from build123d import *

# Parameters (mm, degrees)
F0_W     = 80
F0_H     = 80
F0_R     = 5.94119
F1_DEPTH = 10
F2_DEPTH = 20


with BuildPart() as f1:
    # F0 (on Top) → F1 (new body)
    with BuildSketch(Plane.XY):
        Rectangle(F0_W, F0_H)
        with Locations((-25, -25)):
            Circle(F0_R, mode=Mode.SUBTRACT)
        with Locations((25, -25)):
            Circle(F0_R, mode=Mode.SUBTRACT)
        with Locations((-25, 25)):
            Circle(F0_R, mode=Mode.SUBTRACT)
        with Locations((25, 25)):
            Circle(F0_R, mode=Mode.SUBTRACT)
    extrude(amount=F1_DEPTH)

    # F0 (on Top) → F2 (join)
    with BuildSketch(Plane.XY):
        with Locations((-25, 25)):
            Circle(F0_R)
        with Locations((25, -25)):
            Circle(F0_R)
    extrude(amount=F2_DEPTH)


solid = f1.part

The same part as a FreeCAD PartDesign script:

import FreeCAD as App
import Part
import Sketcher
Q = App.Units.Quantity

doc = App.newDocument("Part")
body = doc.addObject("PartDesign::Body", "Body")

# Sketch on XY plane
sketch1 = body.newObject("Sketcher::SketchObject", "Sketch")
sketch1.AttachmentSupport = (doc.getObject("XY_Plane"), [""])
sketch1.MapMode = "FlatFace"
sketch1.addGeometry([
    Part.LineSegment(App.Vector(-40, 40, 0), App.Vector(-40, -40, 0)),  # 0
    Part.LineSegment(App.Vector(-40, -40, 0), App.Vector(40, -40, 0)),  # 1
    Part.LineSegment(App.Vector(40, -40, 0), App.Vector(40, 40, 0)),  # 2
    Part.LineSegment(App.Vector(40, 40, 0), App.Vector(-40, 40, 0)),  # 3
    Part.Circle(App.Vector(-25, -25, 0), App.Vector(0, 0, 1), 6),  # 4
    Part.Circle(App.Vector(25, -25, 0), App.Vector(0, 0, 1), 6),  # 5
    Part.Circle(App.Vector(-25, 25, 0), App.Vector(0, 0, 1), 6),  # 6
    Part.Circle(App.Vector(25, 25, 0), App.Vector(0, 0, 1), 6),  # 7
], False)
sketch1.addConstraint([
    Sketcher.Constraint("Coincident", 0, 2, 1, 1),
    Sketcher.Constraint("Coincident", 1, 2, 2, 1),
    Sketcher.Constraint("Coincident", 2, 2, 3, 1),
    Sketcher.Constraint("Coincident", 3, 2, 0, 1),
    Sketcher.Constraint("Vertical", 0),
    Sketcher.Constraint("Horizontal", 1),
    Sketcher.Constraint("Vertical", 2),
    Sketcher.Constraint("Horizontal", 3),
    Sketcher.Constraint("Equal", 4, 5),
    Sketcher.Constraint("Equal", 5, 6),
    Sketcher.Constraint("Equal", 6, 7),
    Sketcher.Constraint("Symmetric", 5, 3, 6, 3, -1, 1),
    Sketcher.Constraint("Symmetric", 4, 3, 7, 3, -1, 1),
    Sketcher.Constraint("Symmetric", 0, 2, 2, 2, -1, 1),
    Sketcher.Constraint("Symmetric", 4, 3, 5, 3, -2),
    Sketcher.Constraint("Equal", 3, 0),
    Sketcher.Constraint("DistanceX", 1, 1, 1, 2, Q("80 mm")),
    Sketcher.Constraint("DistanceX", 4, 3, -1, 1, Q("25 mm")),
    Sketcher.Constraint("DistanceY", 4, 3, -1, 1, Q("25 mm")),
    Sketcher.Constraint("Diameter", 4, Q("11.88238 mm")),
])
pad1 = body.newObject("PartDesign::Pad", "Pad")
pad1.Profile = sketch1
pad1.Length = 10

# Sketch on XY plane
sketch2 = body.newObject("Sketcher::SketchObject", "Sketch001")
sketch2.AttachmentSupport = (doc.getObject("XY_Plane"), [""])
sketch2.MapMode = "FlatFace"
sketch2.addGeometry([
    Part.Circle(App.Vector(-25, 25, 0), App.Vector(0, 0, 1), 6),
    Part.Circle(App.Vector(25, -25, 0), App.Vector(0, 0, 1), 6),
], False)
sketch2.addConstraint([
    Sketcher.Constraint("Equal", 0, 1),
    Sketcher.Constraint("Symmetric", 0, 3, 1, 3, -1, 1),
    Sketcher.Constraint("DistanceX", 0, 3, -1, 1, Q("25 mm")),
    Sketcher.Constraint("DistanceY", -1, 1, 0, 3, Q("25 mm")),
    Sketcher.Constraint("Diameter", 0, Q("11.88238 mm")),
])
pad2 = body.newObject("PartDesign::Pad", "Pad001")
pad2.Profile = sketch2
pad2.Length = 20

doc.recompute()
